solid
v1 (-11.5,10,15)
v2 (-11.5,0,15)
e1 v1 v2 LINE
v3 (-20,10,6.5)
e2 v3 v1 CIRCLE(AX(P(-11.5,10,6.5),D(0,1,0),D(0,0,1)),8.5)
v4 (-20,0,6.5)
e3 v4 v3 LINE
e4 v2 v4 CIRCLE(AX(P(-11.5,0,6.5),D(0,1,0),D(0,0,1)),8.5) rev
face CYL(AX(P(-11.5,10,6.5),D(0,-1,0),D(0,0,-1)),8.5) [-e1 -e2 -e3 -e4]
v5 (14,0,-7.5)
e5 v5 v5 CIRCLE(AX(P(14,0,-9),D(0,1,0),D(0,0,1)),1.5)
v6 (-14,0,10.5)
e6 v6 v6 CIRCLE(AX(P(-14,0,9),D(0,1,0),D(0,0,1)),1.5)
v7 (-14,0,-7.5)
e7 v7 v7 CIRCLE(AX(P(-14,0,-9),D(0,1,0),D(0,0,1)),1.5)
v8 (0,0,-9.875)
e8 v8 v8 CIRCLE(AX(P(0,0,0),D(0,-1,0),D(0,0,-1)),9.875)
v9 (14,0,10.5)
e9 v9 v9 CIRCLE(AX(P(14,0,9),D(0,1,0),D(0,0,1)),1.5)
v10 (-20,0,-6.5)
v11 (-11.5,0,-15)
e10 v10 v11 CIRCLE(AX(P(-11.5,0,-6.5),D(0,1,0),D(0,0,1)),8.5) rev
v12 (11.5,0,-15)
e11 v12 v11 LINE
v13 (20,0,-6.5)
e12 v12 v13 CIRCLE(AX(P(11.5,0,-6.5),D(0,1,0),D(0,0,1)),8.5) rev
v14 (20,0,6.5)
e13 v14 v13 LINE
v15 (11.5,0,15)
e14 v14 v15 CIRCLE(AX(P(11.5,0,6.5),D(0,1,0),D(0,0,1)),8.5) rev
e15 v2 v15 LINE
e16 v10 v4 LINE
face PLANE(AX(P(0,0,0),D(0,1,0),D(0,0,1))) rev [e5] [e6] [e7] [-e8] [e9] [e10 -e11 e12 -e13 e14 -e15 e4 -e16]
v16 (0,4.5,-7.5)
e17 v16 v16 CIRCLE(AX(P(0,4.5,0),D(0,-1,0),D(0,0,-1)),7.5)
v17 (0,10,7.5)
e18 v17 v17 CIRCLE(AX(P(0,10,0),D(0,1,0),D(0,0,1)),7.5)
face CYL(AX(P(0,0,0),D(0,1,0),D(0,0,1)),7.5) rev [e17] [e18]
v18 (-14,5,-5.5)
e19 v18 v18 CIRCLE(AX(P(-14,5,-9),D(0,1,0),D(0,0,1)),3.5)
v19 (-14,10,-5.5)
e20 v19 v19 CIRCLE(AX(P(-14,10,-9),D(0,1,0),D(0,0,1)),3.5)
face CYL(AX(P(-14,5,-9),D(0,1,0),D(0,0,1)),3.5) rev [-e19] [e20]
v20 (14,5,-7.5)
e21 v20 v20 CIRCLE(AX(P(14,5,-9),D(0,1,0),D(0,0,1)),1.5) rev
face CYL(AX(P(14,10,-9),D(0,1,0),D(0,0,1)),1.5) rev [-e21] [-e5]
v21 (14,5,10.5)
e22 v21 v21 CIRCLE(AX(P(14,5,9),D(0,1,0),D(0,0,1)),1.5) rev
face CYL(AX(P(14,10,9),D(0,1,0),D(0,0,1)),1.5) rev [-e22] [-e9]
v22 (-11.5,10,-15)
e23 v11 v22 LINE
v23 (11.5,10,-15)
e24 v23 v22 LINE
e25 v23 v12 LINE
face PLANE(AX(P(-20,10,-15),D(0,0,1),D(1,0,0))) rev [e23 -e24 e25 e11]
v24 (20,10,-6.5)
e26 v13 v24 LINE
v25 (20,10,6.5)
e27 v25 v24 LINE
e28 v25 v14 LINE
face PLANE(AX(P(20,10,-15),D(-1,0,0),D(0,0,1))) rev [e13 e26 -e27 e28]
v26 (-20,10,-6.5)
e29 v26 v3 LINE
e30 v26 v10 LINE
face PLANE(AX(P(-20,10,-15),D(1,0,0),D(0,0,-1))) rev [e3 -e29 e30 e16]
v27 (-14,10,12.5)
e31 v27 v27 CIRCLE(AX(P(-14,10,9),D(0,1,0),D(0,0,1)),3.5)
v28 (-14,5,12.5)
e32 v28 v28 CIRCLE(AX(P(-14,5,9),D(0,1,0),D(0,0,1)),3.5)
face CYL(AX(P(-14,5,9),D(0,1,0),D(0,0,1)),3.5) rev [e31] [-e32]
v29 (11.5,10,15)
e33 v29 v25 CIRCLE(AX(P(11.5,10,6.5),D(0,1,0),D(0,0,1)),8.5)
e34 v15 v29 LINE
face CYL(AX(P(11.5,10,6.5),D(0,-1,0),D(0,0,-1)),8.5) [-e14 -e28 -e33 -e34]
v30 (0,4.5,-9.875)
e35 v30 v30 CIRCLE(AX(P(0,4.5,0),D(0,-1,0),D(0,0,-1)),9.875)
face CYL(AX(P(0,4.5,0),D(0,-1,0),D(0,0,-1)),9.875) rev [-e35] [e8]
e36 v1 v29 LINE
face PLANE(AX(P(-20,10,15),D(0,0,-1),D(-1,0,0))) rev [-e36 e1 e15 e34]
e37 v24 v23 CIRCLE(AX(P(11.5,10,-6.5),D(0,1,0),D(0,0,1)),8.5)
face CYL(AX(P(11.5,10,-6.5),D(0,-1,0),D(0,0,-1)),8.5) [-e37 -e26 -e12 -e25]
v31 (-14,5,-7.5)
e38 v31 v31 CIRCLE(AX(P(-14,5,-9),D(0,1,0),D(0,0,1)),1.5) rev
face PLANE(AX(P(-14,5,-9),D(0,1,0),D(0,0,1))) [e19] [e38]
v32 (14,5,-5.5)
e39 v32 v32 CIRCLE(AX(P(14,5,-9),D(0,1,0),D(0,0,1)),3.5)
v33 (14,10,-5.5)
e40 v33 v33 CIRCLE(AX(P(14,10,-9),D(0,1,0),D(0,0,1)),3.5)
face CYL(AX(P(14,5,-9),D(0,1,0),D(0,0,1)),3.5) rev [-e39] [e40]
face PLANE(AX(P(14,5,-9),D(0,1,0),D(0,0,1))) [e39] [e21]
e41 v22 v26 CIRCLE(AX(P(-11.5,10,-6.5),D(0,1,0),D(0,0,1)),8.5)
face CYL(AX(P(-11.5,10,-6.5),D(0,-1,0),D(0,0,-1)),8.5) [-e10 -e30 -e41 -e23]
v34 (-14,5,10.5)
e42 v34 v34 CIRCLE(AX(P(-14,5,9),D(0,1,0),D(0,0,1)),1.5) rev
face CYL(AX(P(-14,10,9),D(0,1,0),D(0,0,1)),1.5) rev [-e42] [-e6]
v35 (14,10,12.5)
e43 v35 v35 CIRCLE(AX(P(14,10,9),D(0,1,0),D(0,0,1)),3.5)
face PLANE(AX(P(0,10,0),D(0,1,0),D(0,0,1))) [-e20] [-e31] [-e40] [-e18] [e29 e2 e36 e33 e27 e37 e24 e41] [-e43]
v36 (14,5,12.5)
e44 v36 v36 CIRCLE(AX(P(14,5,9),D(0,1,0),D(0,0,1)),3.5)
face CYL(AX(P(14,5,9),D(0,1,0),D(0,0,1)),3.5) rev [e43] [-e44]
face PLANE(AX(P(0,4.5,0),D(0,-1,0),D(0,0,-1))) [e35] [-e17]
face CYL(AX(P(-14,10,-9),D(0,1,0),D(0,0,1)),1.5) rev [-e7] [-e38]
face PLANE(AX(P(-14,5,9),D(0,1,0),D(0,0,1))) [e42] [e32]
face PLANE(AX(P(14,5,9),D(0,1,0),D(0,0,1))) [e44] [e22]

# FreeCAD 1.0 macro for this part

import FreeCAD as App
import Part
import Sketcher

V = App.Vector


def edges_at(feature, points):
    """Names of the edges that pass closest to the given points."""
    edges = feature.Shape.Edges
    near = lambda p: min(range(len(edges)), key=lambda i: edges[i].distToShape(Part.Vertex(*p))[0])
    return sorted({f"Edge{near(p) + 1}" for p in points})


def add_polygon(sketch, points):
    """Adds a closed chain of lines whose ends are joined by coincident constraints."""
    first, n = sketch.GeometryCount, len(points)
    for a, b in zip(points, points[1:] + points[:1]):
        sketch.addGeometry(Part.LineSegment(App.Vector(*a, 0), App.Vector(*b, 0)), False)
    for i in range(n):
        sketch.addConstraint(Sketcher.Constraint("Coincident", first + i, 2, first + (i + 1) % n, 1))

doc = App.newDocument("Part")
body = doc.addObject("PartDesign::Body", "Body")

# Sketch on XZ plane
sketch1 = body.newObject("Sketcher::SketchObject", "Sketch")
sketch1.AttachmentSupport = (doc.getObject("XZ_Plane"), [""])
sketch1.MapMode = "FlatFace"
add_polygon(sketch1, [(-20, -15), (-20, 15), (20, 15), (20, -15)])  # lines 0-3
sketch1.addConstraint([
    Sketcher.Constraint("Vertical", 0),
    Sketcher.Constraint("Horizontal", 1),
    Sketcher.Constraint("Vertical", 2),
    Sketcher.Constraint("Horizontal", 3),
    Sketcher.Constraint("Symmetric", 0, 2, 2, 2, -1, 1),
    Sketcher.Constraint("DistanceX", 1, 1, 1, 2, 40.0),
    Sketcher.Constraint("DistanceY", 0, 1, 0, 2, 30.0),
])
pad1 = body.newObject("PartDesign::Pad", "Pad")
pad1.Profile = sketch1
pad1.Length = 10
pad1.Reversed = True

# Sketch on XZ plane
sketch2 = body.newObject("Sketcher::SketchObject", "Sketch001")
sketch2.AttachmentSupport = (doc.getObject("XZ_Plane"), [""])
sketch2.MapMode = "FlatFace"
sketch2.addGeometry(Part.Circle(V(0, 0, 0), V(0, 0, 1), 10), False)
sketch2.addConstraint([
    Sketcher.Constraint("Coincident", 0, 3, -1, 1),
    Sketcher.Constraint("Diameter", 0, 19.75),
])
pocket1 = body.newObject("PartDesign::Pocket", "Pocket")
pocket1.Profile = sketch2
pocket1.Length = 4.5

# Sketch on XZ plane
sketch3 = body.newObject("Sketcher::SketchObject", "Sketch002")
sketch3.AttachmentSupport = (doc.getObject("XZ_Plane"), [""])
sketch3.MapMode = "FlatFace"
sketch3.AttachmentOffset = App.Placement(V(0, 0, -10), App.Rotation())
sketch3.addGeometry(Part.Circle(V(0, 0, 0), V(0, 0, 1), 8), False)
sketch3.addConstraint([
    Sketcher.Constraint("Coincident", 0, 3, -1, 1),
    Sketcher.Constraint("Diameter", 0, 15.0),
])
pocket2 = body.newObject("PartDesign::Pocket", "Pocket001")
pocket2.Profile = sketch3
pocket2.Type = "ThroughAll"
pocket2.Reversed = True

# Sketch on XZ plane
sketch4 = body.newObject("Sketcher::SketchObject", "Sketch003")
sketch4.AttachmentSupport = (doc.getObject("XZ_Plane"), [""])
sketch4.MapMode = "FlatFace"
sketch4.AttachmentOffset = App.Placement(V(0, 0, -10), App.Rotation())
sketch4.addGeometry([
    Part.Circle(V(-14, -9, 0), V(0, 0, 1), 1.5),
    Part.Circle(V(-14, 9, 0), V(0, 0, 1), 1.5),
    Part.Circle(V(14, 9, 0), V(0, 0, 1), 1.5),
    Part.Circle(V(14, -9, 0), V(0, 0, 1), 1.5),
], False)
sketch4.addConstraint([
    Sketcher.Constraint("Equal", 0, 1),
    Sketcher.Constraint("Equal", 1, 2),
    Sketcher.Constraint("Equal", 2, 3),
    Sketcher.Constraint("Symmetric", 0, 3, 2, 3, -1, 1),
    Sketcher.Constraint("Symmetric", 1, 3, 3, 3, -1, 1),
    Sketcher.Constraint("Symmetric", 1, 3, 2, 3, -2),
    Sketcher.Constraint("Diameter", 0, 3.0),
    Sketcher.Constraint("DistanceX", 0, 3, -1, 1, 14.0),
    Sketcher.Constraint("DistanceY", 0, 3, -1, 1, 9.0),
])
doc.recompute()
hole = body.newObject("PartDesign::Hole", "Hole")
hole.Profile = sketch4
hole.ThreadType = "None"
hole.Diameter = 3
hole.DepthType = "ThroughAll"
hole.Reversed = True
doc.recompute()

fillet = body.newObject("PartDesign::Fillet", "Fillet")
fillet.Base = (hole, edges_at(hole, [
    (20, 5, 15),
    (-20, 5, 15),
    (-20, 5, -15),
    (20, 5, -15),
]))
fillet.Radius = 8.5

# Sketch on XZ plane
sketch5 = body.newObject("Sketcher::SketchObject", "Sketch004")
sketch5.AttachmentSupport = (doc.getObject("XZ_Plane"), [""])
sketch5.MapMode = "FlatFace"
sketch5.AttachmentOffset = App.Placement(V(0, 0, -10), App.Rotation())
sketch5.addGeometry([
    Part.Circle(V(14, 9, 0), V(0, 0, 1), 3.5),
    Part.Circle(V(-14, 9, 0), V(0, 0, 1), 3.5),
    Part.Circle(V(-14, -9, 0), V(0, 0, 1), 3.5),
    Part.Circle(V(14, -9, 0), V(0, 0, 1), 3.5),
], False)
sketch5.addConstraint([
    Sketcher.Constraint("Equal", 0, 1),
    Sketcher.Constraint("Equal", 1, 2),
    Sketcher.Constraint("Equal", 2, 3),
    Sketcher.Constraint("Symmetric", 0, 3, 2, 3, -1, 1),
    Sketcher.Constraint("Symmetric", 1, 3, 3, 3, -1, 1),
    Sketcher.Constraint("Symmetric", 0, 3, 1, 3, -2),
    Sketcher.Constraint("Diameter", 0, 7.0),
    Sketcher.Constraint("DistanceX", -1, 1, 0, 3, 14.0),
    Sketcher.Constraint("DistanceY", -1, 1, 0, 3, 9.0),
])
pocket3 = body.newObject("PartDesign::Pocket", "Pocket002")
pocket3.Profile = sketch5
pocket3.Length = 5
pocket3.Reversed = True

doc.recompute()
